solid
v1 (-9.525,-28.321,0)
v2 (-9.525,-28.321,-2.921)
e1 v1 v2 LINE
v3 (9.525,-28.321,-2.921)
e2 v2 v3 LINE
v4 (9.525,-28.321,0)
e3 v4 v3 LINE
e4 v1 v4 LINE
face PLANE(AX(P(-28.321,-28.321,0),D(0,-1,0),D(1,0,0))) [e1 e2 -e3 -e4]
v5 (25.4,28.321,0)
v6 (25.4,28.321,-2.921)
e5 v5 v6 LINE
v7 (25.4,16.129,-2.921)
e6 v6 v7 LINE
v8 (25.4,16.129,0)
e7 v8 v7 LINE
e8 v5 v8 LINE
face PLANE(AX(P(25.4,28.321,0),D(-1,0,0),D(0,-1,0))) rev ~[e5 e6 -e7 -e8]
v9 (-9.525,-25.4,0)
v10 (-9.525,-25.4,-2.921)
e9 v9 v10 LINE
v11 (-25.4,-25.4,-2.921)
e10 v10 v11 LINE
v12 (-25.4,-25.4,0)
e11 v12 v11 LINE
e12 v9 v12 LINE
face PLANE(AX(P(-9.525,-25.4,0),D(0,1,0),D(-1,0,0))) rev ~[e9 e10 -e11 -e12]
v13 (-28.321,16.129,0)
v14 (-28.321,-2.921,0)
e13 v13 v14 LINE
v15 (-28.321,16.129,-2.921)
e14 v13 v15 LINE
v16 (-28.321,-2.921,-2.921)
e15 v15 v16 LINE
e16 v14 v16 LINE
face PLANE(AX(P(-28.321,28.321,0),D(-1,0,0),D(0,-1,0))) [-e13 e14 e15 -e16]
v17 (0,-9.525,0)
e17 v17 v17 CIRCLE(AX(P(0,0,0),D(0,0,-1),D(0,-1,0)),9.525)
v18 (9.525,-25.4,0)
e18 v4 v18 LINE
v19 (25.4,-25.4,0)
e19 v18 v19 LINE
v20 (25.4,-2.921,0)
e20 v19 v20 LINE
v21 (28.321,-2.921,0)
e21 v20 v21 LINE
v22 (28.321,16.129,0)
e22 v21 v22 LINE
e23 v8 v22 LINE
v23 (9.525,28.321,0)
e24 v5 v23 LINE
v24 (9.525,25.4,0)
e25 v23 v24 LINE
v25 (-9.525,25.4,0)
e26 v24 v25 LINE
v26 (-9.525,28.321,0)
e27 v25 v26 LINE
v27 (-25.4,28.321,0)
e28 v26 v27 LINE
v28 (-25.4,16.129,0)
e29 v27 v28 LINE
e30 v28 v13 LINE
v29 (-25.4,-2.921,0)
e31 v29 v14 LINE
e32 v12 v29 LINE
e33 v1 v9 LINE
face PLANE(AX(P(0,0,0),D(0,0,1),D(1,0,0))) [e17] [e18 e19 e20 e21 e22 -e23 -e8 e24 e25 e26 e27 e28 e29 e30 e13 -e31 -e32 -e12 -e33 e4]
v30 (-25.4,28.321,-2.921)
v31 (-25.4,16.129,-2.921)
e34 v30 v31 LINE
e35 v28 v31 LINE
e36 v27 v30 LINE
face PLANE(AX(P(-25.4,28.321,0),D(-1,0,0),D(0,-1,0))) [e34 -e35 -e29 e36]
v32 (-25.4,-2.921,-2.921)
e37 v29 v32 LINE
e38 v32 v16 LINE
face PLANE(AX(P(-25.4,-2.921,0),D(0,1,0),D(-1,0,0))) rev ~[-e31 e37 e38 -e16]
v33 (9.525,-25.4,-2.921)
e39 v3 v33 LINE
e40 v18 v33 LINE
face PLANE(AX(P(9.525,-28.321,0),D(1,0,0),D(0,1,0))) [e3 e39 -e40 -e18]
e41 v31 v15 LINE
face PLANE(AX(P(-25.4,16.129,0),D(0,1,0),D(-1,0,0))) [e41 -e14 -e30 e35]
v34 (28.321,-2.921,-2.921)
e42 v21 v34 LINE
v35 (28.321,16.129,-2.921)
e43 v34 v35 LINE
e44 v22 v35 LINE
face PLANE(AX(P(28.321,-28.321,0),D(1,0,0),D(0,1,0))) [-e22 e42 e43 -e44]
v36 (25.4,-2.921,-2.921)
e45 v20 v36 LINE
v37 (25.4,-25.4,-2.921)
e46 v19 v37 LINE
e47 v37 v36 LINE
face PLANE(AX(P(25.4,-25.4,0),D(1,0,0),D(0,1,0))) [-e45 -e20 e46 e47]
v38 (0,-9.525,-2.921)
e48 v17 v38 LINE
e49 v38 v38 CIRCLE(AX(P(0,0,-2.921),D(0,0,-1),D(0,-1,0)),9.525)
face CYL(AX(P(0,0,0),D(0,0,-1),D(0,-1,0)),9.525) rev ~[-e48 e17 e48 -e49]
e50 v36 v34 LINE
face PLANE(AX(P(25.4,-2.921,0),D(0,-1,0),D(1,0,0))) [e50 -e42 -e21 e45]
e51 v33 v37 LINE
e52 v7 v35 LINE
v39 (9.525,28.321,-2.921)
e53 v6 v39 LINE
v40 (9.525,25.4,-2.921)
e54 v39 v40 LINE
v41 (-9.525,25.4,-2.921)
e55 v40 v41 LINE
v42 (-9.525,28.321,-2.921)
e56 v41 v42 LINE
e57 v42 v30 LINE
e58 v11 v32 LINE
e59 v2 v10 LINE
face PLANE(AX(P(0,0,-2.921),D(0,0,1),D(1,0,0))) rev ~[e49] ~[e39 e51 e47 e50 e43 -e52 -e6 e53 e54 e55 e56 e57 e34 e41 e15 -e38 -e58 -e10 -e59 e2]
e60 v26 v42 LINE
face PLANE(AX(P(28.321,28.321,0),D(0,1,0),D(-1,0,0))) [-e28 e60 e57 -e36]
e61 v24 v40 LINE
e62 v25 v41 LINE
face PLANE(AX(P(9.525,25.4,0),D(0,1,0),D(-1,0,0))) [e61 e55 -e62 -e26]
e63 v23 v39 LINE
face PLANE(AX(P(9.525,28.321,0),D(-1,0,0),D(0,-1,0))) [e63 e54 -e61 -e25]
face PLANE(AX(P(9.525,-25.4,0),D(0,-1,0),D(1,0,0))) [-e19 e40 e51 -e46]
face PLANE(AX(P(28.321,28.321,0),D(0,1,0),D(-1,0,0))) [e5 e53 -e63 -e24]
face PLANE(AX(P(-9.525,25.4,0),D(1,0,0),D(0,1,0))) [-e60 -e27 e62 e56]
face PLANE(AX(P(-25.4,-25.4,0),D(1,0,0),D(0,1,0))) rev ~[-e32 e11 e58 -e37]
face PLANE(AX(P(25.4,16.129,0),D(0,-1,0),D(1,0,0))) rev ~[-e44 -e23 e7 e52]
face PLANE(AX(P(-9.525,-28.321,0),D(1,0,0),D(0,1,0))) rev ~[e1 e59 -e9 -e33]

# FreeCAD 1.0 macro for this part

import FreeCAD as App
import Part
import Sketcher

V = App.Vector
Q = App.Units.Quantity

doc = App.newDocument("Part")
params = doc.addObject("Spreadsheet::Sheet", "Params")
for row, (alias, value) in enumerate([
    ("sketch1_width", "2.23 in"),
    ("pad1_length", "0.115 in"),
    ("sketch2_height", "1 in"),
    ("sketch2_width", "0.74 in"),
    ("sketch2_width2", "0.75 in"),
    ("sketch2_height2", "0.48 in"),
    ("pocket1_length", "1 in"),
    ("sketch3_diameter", "0.75 in"),
    ("hole_diameter", "0.75 in"),
], start=1):
    params.set(f"A{row}", alias)
    params.set(f"B{row}", "=" + value)
    params.setAlias(f"B{row}", alias)

body = doc.addObject("PartDesign::Body", "Body")

sketch1 = doc.addObject("Sketcher::SketchObject", "Sketch")
body.addObject(sketch1)
sketch1.AttachmentSupport = (doc.XY_Plane, [""])
sketch1.MapMode = "FlatFace"
sketch1.addGeometry(Part.LineSegment(V(-28, 28, 0), V(-28, -28, 0)), False)
sketch1.addGeometry(Part.LineSegment(V(-28, -28, 0), V(28, -28, 0)), False)
sketch1.addGeometry(Part.LineSegment(V(28, -28, 0), V(28, 28, 0)), False)
sketch1.addGeometry(Part.LineSegment(V(28, 28, 0), V(-28, 28, 0)), False)
sketch1.addConstraint(Sketcher.Constraint("Coincident", 0, 2, 1, 1))
sketch1.addConstraint(Sketcher.Constraint("Coincident", 1, 2, 2, 1))
sketch1.addConstraint(Sketcher.Constraint("Coincident", 2, 2, 3, 1))
sketch1.addConstraint(Sketcher.Constraint("Coincident", 3, 2, 0, 1))
sketch1.addConstraint(Sketcher.Constraint("Vertical", 0))
sketch1.addConstraint(Sketcher.Constraint("Horizontal", 1))
sketch1.addConstraint(Sketcher.Constraint("Vertical", 2))
sketch1.addConstraint(Sketcher.Constraint("Horizontal", 3))
sketch1.addConstraint(Sketcher.Constraint("Symmetric", 0, 2, 2, 2, -1, 1))
sketch1.addConstraint(Sketcher.Constraint("Equal", 3, 0))
sketch1.addConstraint(Sketcher.Constraint("DistanceX", 1, 1, 1, 2, Q("2.23 in")))
sketch1.setExpression("Constraints[10]", "Params.sketch1_width")
pad1 = doc.addObject("PartDesign::Pad", "Pad")
body.addObject(pad1)
pad1.Profile = sketch1
pad1.setExpression("Length", "Params.pad1_length")
pad1.Reversed = True

sketch2 = doc.addObject("Sketcher::SketchObject", "Sketch001")
body.addObject(sketch2)
sketch2.AttachmentSupport = (doc.XY_Plane, [""])
sketch2.MapMode = "FlatFace"
sketch2.addGeometry(Part.LineSegment(V(-28.3, -28.3, 0), V(-9.5, -28.3, 0)), False)
sketch2.addGeometry(Part.LineSegment(V(-9.5, -28.3, 0), V(-9.5, -25.4, 0)), False)
sketch2.addGeometry(Part.LineSegment(V(-9.5, -25.4, 0), V(-25.4, -25.4, 0)), False)
sketch2.addGeometry(Part.LineSegment(V(-25.4, -25.4, 0), V(-25.4, -2.9, 0)), False)
sketch2.addGeometry(Part.LineSegment(V(-25.4, -2.9, 0), V(-28.3, -2.9, 0)), False)
sketch2.addGeometry(Part.LineSegment(V(-28.3, -2.9, 0), V(-28.3, -28.3, 0)), False)
sketch2.addGeometry(Part.LineSegment(V(9.5, -25.4, 0), V(9.5, -28.3, 0)), False)
sketch2.addGeometry(Part.LineSegment(V(9.5, -28.3, 0), V(28.3, -28.3, 0)), False)
sketch2.addGeometry(Part.LineSegment(V(28.3, -28.3, 0), V(28.3, -2.9, 0)), False)
sketch2.addGeometry(Part.LineSegment(V(28.3, -2.9, 0), V(25.4, -2.9, 0)), False)
sketch2.addGeometry(Part.LineSegment(V(25.4, -2.9, 0), V(25.4, -25.4, 0)), False)
sketch2.addGeometry(Part.LineSegment(V(25.4, -25.4, 0), V(9.5, -25.4, 0)), False)
sketch2.addGeometry(Part.LineSegment(V(-28.3, 28.3, 0), V(-28.3, 16.1, 0)), False)
sketch2.addGeometry(Part.LineSegment(V(-28.3, 16.1, 0), V(-25.4, 16.1, 0)), False)
sketch2.addGeometry(Part.LineSegment(V(-25.4, 16.1, 0), V(-25.4, 28.3, 0)), False)
sketch2.addGeometry(Part.LineSegment(V(-25.4, 28.3, 0), V(-28.3, 28.3, 0)), False)
sketch2.addGeometry(Part.LineSegment(V(9.5, 28.3, 0), V(-9.5, 28.3, 0)), False)
sketch2.addGeometry(Part.LineSegment(V(-9.5, 28.3, 0), V(-9.5, 25.4, 0)), False)
sketch2.addGeometry(Part.LineSegment(V(-9.5, 25.4, 0), V(9.5, 25.4, 0)), False)
sketch2.addGeometry(Part.LineSegment(V(9.5, 25.4, 0), V(9.5, 28.3, 0)), False)
sketch2.addGeometry(Part.LineSegment(V(25.4, 16.1, 0), V(28.3, 16.1, 0)), False)
sketch2.addGeometry(Part.LineSegment(V(28.3, 16.1, 0), V(28.3, 28.3, 0)), False)
sketch2.addGeometry(Part.LineSegment(V(28.3, 28.3, 0), V(25.4, 28.3, 0)), False)
sketch2.addGeometry(Part.LineSegment(V(25.4, 28.3, 0), V(25.4, 16.1, 0)), False)
sketch2.addConstraint(Sketcher.Constraint("Coincident", 0, 2, 1, 1))
sketch2.addConstraint(Sketcher.Constraint("Coincident", 1, 2, 2, 1))
sketch2.addConstraint(Sketcher.Constraint("Coincident", 2, 2, 3, 1))
sketch2.addConstraint(Sketcher.Constraint("Coincident", 3, 2, 4, 1))
sketch2.addConstraint(Sketcher.Constraint("Coincident", 4, 2, 5, 1))
sketch2.addConstraint(Sketcher.Constraint("Coincident", 5, 2, 0, 1))
sketch2.addConstraint(Sketcher.Constraint("Coincident", 6, 2, 7, 1))
sketch2.addConstraint(Sketcher.Constraint("Coincident", 7, 2, 8, 1))
sketch2.addConstraint(Sketcher.Constraint("Coincident", 8, 2, 9, 1))
sketch2.addConstraint(Sketcher.Constraint("Coincident", 9, 2, 10, 1))
sketch2.addConstraint(Sketcher.Constraint("Coincident", 10, 2, 11, 1))
sketch2.addConstraint(Sketcher.Constraint("Coincident", 11, 2, 6, 1))
sketch2.addConstraint(Sketcher.Constraint("Coincident", 12, 2, 13, 1))
sketch2.addConstraint(Sketcher.Constraint("Coincident", 13, 2, 14, 1))
sketch2.addConstraint(Sketcher.Constraint("Coincident", 14, 2, 15, 1))
sketch2.addConstraint(Sketcher.Constraint("Coincident", 15, 2, 12, 1))
sketch2.addConstraint(Sketcher.Constraint("Coincident", 16, 2, 17, 1))
sketch2.addConstraint(Sketcher.Constraint("Coincident", 17, 2, 18, 1))
sketch2.addConstraint(Sketcher.Constraint("Coincident", 18, 2, 19, 1))
sketch2.addConstraint(Sketcher.Constraint("Coincident", 19, 2, 16, 1))
sketch2.addConstraint(Sketcher.Constraint("Coincident", 20, 2, 21, 1))
sketch2.addConstraint(Sketcher.Constraint("Coincident", 21, 2, 22, 1))
sketch2.addConstraint(Sketcher.Constraint("Coincident", 22, 2, 23, 1))
sketch2.addConstraint(Sketcher.Constraint("Coincident", 23, 2, 20, 1))
sketch2.addConstraint(Sketcher.Constraint("Horizontal", 0))
sketch2.addConstraint(Sketcher.Constraint("Vertical", 1))
sketch2.addConstraint(Sketcher.Constraint("Horizontal", 2))
sketch2.addConstraint(Sketcher.Constraint("Vertical", 3))
sketch2.addConstraint(Sketcher.Constraint("Horizontal", 4))
sketch2.addConstraint(Sketcher.Constraint("Vertical", 5))
sketch2.addConstraint(Sketcher.Constraint("Vertical", 6))
sketch2.addConstraint(Sketcher.Constraint("Horizontal", 7))
sketch2.addConstraint(Sketcher.Constraint("Vertical", 8))
sketch2.addConstraint(Sketcher.Constraint("Horizontal", 9))
sketch2.addConstraint(Sketcher.Constraint("Vertical", 10))
sketch2.addConstraint(Sketcher.Constraint("Horizontal", 11))
sketch2.addConstraint(Sketcher.Constraint("Vertical", 12))
sketch2.addConstraint(Sketcher.Constraint("Horizontal", 13))
sketch2.addConstraint(Sketcher.Constraint("Vertical", 14))
sketch2.addConstraint(Sketcher.Constraint("Horizontal", 15))
sketch2.addConstraint(Sketcher.Constraint("Horizontal", 16))
sketch2.addConstraint(Sketcher.Constraint("Vertical", 17))
sketch2.addConstraint(Sketcher.Constraint("Horizontal", 18))
sketch2.addConstraint(Sketcher.Constraint("Vertical", 19))
sketch2.addConstraint(Sketcher.Constraint("Horizontal", 20))
sketch2.addConstraint(Sketcher.Constraint("Vertical", 21))
sketch2.addConstraint(Sketcher.Constraint("Horizontal", 22))
sketch2.addConstraint(Sketcher.Constraint("Vertical", 23))
sketch2.addConstraint(Sketcher.Constraint("Symmetric", 7, 2, 15, 2, -1, 1))
sketch2.addConstraint(Sketcher.Constraint("Symmetric", 6, 2, 16, 2, -1, 1))
sketch2.addConstraint(Sketcher.Constraint("Symmetric", 1, 2, 18, 2, -1, 1))
sketch2.addConstraint(Sketcher.Constraint("Symmetric", 5, 2, 21, 2, -1, 1))
sketch2.addConstraint(Sketcher.Constraint("Symmetric", 0, 2, 6, 2, -2))
sketch2.addConstraint(Sketcher.Constraint("Symmetric", 4, 2, 8, 2, -2))
sketch2.addConstraint(Sketcher.Constraint("Symmetric", 2, 2, 10, 2, -2))
sketch2.addConstraint(Sketcher.Constraint("Symmetric", 13, 2, 23, 2, -2))
sketch2.addConstraint(Sketcher.Constraint("Vertical", 3, 2, 13, 2))
sketch2.addConstraint(Sketcher.Constraint("Equal", 22, 1))
sketch2.addConstraint(Sketcher.Constraint("DistanceY", 5, 2, 5, 1, Q("1 in")))
sketch2.addConstraint(Sketcher.Constraint("DistanceY", 1, 2, -1, 1, Q("1 in")))
sketch2.addConstraint(Sketcher.Constraint("DistanceX", 2, 2, -1, 1, Q("1 in")))
sketch2.addConstraint(Sketcher.Constraint("DistanceX", 0, 1, 0, 2, Q("0.74 in")))
sketch2.addConstraint(Sketcher.Constraint("DistanceX", 16, 2, 16, 1, Q("0.75 in")))
sketch2.addConstraint(Sketcher.Constraint("DistanceY", 12, 2, 12, 1, Q("0.48 in")))
sketch2.setExpression("Constraints[58]", "Params.sketch2_height")
sketch2.setExpression("Constraints[61]", "Params.sketch2_width")
sketch2.setExpression("Constraints[62]", "Params.sketch2_width2")
sketch2.setExpression("Constraints[63]", "Params.sketch2_height2")
pocket1 = doc.addObject("PartDesign::Pocket", "Pocket")
body.addObject(pocket1)
pocket1.Profile = sketch2
pocket1.setExpression("Length", "Params.pocket1_length")

sketch3 = doc.addObject("Sketcher::SketchObject", "Sketch002")
body.addObject(sketch3)
sketch3.AttachmentSupport = (doc.XY_Plane, [""])
sketch3.MapMode = "FlatFace"
sketch3.addGeometry(Part.Circle(V(0, 0, 0), V(0, 0, 1), 10), False)
sketch3.addConstraint(Sketcher.Constraint("Coincident", 0, 3, -1, 1))
sketch3.addConstraint(Sketcher.Constraint("Diameter", 0, Q("0.75 in")))
sketch3.setExpression("Constraints[1]", "Params.sketch3_diameter")
doc.recompute()
hole = doc.addObject("PartDesign::Hole", "Hole")
body.addObject(hole)
hole.Profile = sketch3
hole.ThreadType = "None"
hole.setExpression("Diameter", "Params.hole_diameter")
hole.DepthType = "ThroughAll"

doc.recompute()
